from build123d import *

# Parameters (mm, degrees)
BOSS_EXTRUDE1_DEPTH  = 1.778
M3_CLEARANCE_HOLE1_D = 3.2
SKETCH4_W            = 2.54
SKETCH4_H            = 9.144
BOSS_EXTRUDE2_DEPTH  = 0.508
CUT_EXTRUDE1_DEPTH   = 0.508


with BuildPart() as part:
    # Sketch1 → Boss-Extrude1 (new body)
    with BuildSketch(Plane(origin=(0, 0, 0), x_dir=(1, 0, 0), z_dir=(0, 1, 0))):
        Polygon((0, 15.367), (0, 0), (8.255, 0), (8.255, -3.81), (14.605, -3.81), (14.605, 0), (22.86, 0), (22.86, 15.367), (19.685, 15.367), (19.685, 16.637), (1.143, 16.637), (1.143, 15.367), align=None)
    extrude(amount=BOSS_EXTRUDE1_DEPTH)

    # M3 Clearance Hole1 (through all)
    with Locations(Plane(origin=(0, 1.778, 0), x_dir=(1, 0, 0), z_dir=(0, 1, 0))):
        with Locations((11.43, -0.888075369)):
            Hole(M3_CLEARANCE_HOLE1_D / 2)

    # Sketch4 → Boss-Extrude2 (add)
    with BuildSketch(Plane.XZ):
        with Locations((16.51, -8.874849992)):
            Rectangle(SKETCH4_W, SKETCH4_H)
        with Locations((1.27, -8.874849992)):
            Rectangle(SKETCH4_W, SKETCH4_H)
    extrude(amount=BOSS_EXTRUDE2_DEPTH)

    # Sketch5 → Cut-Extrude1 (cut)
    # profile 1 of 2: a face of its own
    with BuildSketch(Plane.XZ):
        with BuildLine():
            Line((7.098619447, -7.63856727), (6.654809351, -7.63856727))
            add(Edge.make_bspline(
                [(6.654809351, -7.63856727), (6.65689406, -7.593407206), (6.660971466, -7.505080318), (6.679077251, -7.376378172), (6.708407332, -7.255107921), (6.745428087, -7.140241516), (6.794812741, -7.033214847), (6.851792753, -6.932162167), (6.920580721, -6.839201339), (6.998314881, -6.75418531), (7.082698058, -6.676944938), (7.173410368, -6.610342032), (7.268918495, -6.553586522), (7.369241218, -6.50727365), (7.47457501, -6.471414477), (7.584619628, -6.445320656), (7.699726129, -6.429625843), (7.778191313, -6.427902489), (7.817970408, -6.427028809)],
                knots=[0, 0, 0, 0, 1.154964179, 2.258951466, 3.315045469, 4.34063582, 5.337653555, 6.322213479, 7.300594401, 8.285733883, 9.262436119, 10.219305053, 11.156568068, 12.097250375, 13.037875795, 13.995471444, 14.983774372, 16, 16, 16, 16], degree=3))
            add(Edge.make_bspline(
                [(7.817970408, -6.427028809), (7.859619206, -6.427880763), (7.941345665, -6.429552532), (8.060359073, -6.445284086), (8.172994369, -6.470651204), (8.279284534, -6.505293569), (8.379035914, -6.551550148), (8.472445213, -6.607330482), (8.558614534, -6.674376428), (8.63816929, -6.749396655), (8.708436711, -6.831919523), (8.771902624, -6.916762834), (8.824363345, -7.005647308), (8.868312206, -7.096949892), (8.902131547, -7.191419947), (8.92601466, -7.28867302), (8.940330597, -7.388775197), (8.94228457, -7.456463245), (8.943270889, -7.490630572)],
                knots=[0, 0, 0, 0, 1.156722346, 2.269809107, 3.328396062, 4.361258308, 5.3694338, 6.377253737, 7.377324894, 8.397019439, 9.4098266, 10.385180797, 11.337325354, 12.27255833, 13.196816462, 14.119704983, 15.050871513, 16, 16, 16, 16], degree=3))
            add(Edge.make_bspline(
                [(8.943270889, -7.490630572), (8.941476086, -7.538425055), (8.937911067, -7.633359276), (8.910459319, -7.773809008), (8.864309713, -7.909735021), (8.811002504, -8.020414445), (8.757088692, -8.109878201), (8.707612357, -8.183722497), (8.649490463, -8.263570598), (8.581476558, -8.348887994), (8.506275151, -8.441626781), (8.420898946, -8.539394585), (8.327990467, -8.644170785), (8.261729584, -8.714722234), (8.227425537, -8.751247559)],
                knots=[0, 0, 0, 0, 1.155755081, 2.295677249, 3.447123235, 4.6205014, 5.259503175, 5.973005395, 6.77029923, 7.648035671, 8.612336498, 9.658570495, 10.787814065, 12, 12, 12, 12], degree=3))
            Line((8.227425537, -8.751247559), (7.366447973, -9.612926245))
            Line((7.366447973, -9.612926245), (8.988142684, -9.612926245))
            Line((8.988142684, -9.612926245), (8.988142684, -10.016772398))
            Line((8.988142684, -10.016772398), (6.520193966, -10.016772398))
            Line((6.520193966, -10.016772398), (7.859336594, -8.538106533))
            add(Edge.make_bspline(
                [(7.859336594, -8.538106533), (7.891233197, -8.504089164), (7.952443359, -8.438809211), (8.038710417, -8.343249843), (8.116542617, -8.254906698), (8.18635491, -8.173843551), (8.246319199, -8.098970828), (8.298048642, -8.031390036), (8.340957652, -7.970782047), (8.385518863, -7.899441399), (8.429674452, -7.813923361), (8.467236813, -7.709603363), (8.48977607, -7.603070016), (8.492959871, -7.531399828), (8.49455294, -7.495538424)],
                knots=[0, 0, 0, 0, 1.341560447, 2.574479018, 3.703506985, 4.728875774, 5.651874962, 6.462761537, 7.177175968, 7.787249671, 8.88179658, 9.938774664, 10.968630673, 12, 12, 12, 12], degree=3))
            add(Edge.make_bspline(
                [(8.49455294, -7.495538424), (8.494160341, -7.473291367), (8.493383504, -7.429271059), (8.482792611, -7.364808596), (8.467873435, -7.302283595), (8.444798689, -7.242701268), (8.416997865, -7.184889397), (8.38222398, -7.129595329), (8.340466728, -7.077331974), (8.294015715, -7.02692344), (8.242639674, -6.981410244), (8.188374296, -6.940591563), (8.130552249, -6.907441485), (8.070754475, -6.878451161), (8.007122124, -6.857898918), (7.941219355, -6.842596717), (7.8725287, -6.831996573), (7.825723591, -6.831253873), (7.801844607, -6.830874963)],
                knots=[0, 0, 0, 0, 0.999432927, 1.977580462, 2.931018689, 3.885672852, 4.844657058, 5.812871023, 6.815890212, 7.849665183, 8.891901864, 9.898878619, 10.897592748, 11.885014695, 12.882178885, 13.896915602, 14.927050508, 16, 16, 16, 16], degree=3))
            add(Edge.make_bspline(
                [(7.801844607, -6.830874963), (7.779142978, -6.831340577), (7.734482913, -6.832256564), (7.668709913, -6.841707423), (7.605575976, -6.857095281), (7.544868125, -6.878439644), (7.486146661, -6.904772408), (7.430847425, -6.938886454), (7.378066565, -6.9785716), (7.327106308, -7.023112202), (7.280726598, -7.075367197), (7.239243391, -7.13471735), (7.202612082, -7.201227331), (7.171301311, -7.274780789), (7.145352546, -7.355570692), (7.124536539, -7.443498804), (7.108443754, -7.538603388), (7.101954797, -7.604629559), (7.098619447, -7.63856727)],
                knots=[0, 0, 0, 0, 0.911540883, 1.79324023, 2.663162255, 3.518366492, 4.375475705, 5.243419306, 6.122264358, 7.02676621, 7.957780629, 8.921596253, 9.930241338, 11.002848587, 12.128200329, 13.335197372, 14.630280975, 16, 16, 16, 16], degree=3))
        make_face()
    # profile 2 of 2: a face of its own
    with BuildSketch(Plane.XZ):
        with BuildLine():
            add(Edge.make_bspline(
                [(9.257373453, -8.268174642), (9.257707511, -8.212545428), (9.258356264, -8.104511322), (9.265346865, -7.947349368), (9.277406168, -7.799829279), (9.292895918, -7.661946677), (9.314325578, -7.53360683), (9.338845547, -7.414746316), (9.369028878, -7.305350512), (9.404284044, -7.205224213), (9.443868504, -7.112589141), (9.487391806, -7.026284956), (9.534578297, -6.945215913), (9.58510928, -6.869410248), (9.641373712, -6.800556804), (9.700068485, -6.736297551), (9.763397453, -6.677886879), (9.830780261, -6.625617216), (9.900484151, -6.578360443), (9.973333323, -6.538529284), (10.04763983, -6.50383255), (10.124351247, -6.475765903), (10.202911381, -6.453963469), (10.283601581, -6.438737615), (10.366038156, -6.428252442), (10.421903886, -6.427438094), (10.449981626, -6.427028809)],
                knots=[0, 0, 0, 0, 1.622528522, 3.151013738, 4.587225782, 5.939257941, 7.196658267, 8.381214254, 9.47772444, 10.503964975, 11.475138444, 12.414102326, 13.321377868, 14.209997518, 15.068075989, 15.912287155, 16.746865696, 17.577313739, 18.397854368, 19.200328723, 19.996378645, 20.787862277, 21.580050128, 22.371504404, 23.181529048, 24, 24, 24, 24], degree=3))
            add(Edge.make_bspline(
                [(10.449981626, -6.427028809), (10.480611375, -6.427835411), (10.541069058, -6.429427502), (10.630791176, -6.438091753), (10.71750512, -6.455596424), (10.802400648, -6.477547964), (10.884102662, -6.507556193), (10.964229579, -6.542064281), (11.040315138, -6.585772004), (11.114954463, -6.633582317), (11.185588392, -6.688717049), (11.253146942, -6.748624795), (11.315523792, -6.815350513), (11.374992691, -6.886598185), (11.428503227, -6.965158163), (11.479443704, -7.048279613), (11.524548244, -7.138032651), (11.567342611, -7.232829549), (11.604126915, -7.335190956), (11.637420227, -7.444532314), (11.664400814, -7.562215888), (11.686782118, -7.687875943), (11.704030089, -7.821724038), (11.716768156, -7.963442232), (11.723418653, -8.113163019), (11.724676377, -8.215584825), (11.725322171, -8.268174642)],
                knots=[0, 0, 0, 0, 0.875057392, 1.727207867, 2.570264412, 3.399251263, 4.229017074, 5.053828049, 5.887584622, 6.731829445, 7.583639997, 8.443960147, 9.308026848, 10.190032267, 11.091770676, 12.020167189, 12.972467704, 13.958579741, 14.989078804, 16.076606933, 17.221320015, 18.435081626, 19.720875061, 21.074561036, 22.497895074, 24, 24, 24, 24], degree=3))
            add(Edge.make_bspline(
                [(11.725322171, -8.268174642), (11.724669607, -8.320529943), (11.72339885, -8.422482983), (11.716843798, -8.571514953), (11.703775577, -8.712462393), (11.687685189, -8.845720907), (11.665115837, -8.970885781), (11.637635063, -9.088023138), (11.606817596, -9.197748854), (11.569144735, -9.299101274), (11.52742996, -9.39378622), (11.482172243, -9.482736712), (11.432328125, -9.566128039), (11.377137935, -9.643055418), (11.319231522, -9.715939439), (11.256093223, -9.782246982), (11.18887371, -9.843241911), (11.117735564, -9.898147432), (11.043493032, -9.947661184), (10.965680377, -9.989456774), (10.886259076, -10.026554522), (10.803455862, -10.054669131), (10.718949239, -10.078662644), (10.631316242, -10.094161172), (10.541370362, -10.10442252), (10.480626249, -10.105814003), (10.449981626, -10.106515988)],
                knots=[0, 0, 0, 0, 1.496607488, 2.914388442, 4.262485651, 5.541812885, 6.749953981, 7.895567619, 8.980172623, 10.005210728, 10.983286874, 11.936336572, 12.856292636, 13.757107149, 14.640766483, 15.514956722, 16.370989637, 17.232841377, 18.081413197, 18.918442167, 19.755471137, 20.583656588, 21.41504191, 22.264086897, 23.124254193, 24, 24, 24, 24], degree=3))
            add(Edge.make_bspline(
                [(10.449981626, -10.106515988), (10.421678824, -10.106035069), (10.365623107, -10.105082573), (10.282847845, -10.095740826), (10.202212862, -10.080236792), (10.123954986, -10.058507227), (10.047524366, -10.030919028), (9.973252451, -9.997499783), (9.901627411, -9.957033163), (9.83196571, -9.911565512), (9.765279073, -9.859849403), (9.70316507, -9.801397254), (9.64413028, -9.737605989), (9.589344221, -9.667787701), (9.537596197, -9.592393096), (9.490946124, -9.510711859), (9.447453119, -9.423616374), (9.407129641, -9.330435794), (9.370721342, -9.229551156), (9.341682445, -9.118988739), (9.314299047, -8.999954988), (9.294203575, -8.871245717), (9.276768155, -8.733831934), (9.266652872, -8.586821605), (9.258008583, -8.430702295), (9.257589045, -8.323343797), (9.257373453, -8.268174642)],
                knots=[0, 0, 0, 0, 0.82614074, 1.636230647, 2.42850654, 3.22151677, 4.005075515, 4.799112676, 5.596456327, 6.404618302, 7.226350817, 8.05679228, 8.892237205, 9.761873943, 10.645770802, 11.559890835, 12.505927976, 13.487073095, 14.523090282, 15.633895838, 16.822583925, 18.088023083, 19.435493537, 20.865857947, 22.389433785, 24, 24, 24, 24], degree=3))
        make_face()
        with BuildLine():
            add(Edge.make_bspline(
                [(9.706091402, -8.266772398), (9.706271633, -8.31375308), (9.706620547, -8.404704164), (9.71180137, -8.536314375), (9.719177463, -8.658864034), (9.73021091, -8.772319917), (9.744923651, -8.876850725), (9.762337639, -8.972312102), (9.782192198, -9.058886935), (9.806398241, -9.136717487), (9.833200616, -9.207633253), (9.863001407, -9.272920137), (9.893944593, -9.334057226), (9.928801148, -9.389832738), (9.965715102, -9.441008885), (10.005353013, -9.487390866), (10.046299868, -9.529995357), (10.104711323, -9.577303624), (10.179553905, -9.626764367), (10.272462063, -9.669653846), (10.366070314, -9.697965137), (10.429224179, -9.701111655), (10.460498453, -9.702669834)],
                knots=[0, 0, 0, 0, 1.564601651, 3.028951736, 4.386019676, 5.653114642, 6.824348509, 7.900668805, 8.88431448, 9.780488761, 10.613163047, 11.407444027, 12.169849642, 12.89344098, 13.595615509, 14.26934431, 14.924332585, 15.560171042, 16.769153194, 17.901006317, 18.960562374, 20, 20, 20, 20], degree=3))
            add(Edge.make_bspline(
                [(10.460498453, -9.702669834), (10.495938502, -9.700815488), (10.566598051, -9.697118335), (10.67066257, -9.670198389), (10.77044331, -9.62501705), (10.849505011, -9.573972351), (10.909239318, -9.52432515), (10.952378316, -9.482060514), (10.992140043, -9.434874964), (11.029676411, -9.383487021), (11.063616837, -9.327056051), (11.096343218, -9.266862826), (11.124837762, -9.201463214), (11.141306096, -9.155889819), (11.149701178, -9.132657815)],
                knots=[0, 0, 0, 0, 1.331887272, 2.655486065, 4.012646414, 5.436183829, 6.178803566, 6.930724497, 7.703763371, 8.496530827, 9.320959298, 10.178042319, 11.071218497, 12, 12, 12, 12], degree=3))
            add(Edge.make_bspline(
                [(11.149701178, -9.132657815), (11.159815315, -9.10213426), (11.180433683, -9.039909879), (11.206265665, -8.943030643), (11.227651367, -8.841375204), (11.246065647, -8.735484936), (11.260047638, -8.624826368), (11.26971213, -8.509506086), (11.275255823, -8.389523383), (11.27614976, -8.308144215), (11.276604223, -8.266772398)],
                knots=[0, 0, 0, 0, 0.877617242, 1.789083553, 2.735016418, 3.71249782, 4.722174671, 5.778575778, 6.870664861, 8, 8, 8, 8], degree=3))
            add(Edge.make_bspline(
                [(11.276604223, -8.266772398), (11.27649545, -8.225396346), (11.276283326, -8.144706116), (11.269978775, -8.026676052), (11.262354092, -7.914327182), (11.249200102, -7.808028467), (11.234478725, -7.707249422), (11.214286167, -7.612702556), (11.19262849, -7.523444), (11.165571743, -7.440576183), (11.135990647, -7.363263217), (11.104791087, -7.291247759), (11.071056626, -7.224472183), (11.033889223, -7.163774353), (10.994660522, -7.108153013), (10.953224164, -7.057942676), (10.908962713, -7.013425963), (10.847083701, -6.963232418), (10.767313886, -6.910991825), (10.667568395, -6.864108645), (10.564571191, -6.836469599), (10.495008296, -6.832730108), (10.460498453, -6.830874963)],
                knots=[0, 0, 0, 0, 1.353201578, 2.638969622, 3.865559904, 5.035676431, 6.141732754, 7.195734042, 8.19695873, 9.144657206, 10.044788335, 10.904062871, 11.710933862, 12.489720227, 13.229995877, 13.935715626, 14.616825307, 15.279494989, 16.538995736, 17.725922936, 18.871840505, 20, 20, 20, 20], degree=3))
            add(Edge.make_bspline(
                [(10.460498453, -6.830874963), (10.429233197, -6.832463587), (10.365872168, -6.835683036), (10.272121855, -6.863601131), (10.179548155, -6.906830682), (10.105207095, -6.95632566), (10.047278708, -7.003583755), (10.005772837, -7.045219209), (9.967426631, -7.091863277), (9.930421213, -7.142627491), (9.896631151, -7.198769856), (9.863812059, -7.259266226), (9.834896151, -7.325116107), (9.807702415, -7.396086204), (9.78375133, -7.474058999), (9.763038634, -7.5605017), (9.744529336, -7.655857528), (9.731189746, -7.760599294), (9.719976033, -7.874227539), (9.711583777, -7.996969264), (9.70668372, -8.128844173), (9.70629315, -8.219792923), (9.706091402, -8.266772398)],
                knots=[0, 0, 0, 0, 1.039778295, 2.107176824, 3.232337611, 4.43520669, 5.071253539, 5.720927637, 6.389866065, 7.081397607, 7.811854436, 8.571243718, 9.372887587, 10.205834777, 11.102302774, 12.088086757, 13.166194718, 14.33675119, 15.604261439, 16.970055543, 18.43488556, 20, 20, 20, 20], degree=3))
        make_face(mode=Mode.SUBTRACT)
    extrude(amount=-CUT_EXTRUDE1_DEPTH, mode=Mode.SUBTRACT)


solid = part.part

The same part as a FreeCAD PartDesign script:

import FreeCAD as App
import Part
import Sketcher
from FreeCAD import Vector
Q = App.Units.Quantity


def add_polygon(sketch, points):
    """Adds a closed chain of lines whose ends are joined by coincident constraints."""
    first, n = sketch.GeometryCount, len(points)
    for a, b in zip(points, points[1:] + points[:1]):
        sketch.addGeometry(Part.LineSegment(App.Vector(*a, 0), App.Vector(*b, 0)), False)
    for i in range(n):
        sketch.addConstraint(Sketcher.Constraint("Coincident", first + i, 2, first + (i + 1) % n, 1))

doc = App.newDocument("Part")
params = doc.addObject("Spreadsheet::Sheet", "Params")
for row, (alias, value) in enumerate([
    ("sketch1_width", "0.25 in"),
    ("sketch1_width2", "0.73 in"),
    ("sketch1_height", "0.15 in"),
    ("sketch1_height2", "0.05 in"),
    ("sketch1_height3", "0.605 in"),
    ("pad1_length", "0.07 in"),
    ("hole_diameter", "3.2 mm"),
    ("sketch3_width", "0.1 in"),
    ("sketch3_height", "0.36 in"),
    ("pad2_length", "0.02 in"),
    ("pocket1_length", "0.02 in"),
], start=1):
    params.set(f"A{row}", alias)
    params.set(f"B{row}", "=" + value)
    params.setAlias(f"B{row}", alias)

body = doc.addObject("PartDesign::Body", "Body")

# Sketch on XZ plane
sketch1 = body.newObject("Sketcher::SketchObject", "Sketch")
sketch1.AttachmentSupport = (doc.getObject("XZ_Plane"), [""])
sketch1.MapMode = "FlatFace"
add_polygon(sketch1, [(0, -15.4), (0, 0), (8.3, 0), (8.3, 3.8), (14.6, 3.8), (14.6, 0), (22.9, 0), (22.9, -15.4), (19.7, -15.4), (19.7, -16.6), (1.1, -16.6), (1.1, -15.4)])  # lines 0-11
sketch1.addConstraint(Sketcher.Constraint("Vertical", 0))
sketch1.addConstraint(Sketcher.Constraint("Horizontal", 1))
sketch1.addConstraint(Sketcher.Constraint("Vertical", 2))
sketch1.addConstraint(Sketcher.Constraint("Horizontal", 3))
sketch1.addConstraint(Sketcher.Constraint("Vertical", 4))
sketch1.addConstraint(Sketcher.Constraint("Horizontal", 5))
sketch1.addConstraint(Sketcher.Constraint("Vertical", 6))
sketch1.addConstraint(Sketcher.Constraint("Horizontal", 7))
sketch1.addConstraint(Sketcher.Constraint("Vertical", 8))
sketch1.addConstraint(Sketcher.Constraint("Horizontal", 9))
sketch1.addConstraint(Sketcher.Constraint("Vertical", 10))
sketch1.addConstraint(Sketcher.Constraint("Horizontal", 11))
sketch1.addConstraint(Sketcher.Constraint("Coincident", 0, 2, -1, 1))
sketch1.addConstraint(Sketcher.Constraint("PointOnObject", 4, 2, -1))
sketch1.addConstraint(Sketcher.Constraint("Horizontal", 7, 2, 10, 2))
sketch1.addConstraint(Sketcher.Constraint("Equal", 1, 5))
sketch1.addConstraint(Sketcher.Constraint("DistanceX", 3, 1, 3, 2, Q("0.25 in")))
sketch1.addConstraint(Sketcher.Constraint("DistanceX", 9, 2, 9, 1, Q("0.73 in")))
sketch1.addConstraint(Sketcher.Constraint("DistanceY", 2, 1, 2, 2, Q("0.15 in")))
sketch1.addConstraint(Sketcher.Constraint("DistanceY", 8, 2, 8, 1, Q("0.05 in")))
sketch1.addConstraint(Sketcher.Constraint("DistanceX", -1, 1, 5, 2, Q("0.9 in")))
sketch1.addConstraint(Sketcher.Constraint("DistanceX", 4, 2, 7, 2, Q("0.2 in")))
sketch1.addConstraint(Sketcher.Constraint("DistanceY", 0, 1, 0, 2, Q("0.605 in")))
sketch1.setExpression("Constraints[28]", "Params.sketch1_width")
sketch1.setExpression("Constraints[29]", "Params.sketch1_width2")
sketch1.setExpression("Constraints[30]", "Params.sketch1_height")
sketch1.setExpression("Constraints[31]", "Params.sketch1_height2")
sketch1.setExpression("Constraints[34]", "Params.sketch1_height3")
pad1 = body.newObject("PartDesign::Pad", "Pad")
pad1.Profile = sketch1
pad1.setExpression("Length", "Params.pad1_length")
pad1.Reversed = True

# Sketch on XZ plane
sketch2 = body.newObject("Sketcher::SketchObject", "Sketch001")
sketch2.AttachmentSupport = (doc.getObject("XZ_Plane"), [""])
sketch2.MapMode = "FlatFace"
sketch2.AttachmentOffset = App.Placement(Vector(0, 0, -0.07 * 25.4), App.Rotation())
sketch2.addGeometry(Part.Circle(Vector(11.4, 0.9, 0), Vector(0, 0, 1), 1.6), False)
sketch2.addConstraint(Sketcher.Constraint("Diameter", 0, 3.2))
sketch2.addConstraint(Sketcher.Constraint("DistanceX", -1, 1, 0, 3, Q("0.45 in")))
sketch2.addConstraint(Sketcher.Constraint("DistanceY", -1, 1, 0, 3, 0.888075))
doc.recompute()
hole = body.newObject("PartDesign::Hole", "Hole")
hole.Profile = sketch2
hole.ThreadType = "None"
hole.setExpression("Diameter", "Params.hole_diameter")
hole.DepthType = "ThroughAll"
hole.Reversed = True

# Sketch on XZ plane
sketch3 = body.newObject("Sketcher::SketchObject", "Sketch002")
sketch3.AttachmentSupport = (doc.getObject("XZ_Plane"), [""])
sketch3.MapMode = "FlatFace"
add_polygon(sketch3, [(15.2, -4.3), (15.2, -13.4), (17.8, -13.4), (17.8, -4.3)])  # lines 0-3
add_polygon(sketch3, [(0, -4.3), (0, -13.4), (2.5, -13.4), (2.5, -4.3)])  # lines 4-7
sketch3.addConstraint(Sketcher.Constraint("Vertical", 0))
sketch3.addConstraint(Sketcher.Constraint("Horizontal", 1))
sketch3.addConstraint(Sketcher.Constraint("Vertical", 2))
sketch3.addConstraint(Sketcher.Constraint("Horizontal", 3))
sketch3.addConstraint(Sketcher.Constraint("Vertical", 4))
sketch3.addConstraint(Sketcher.Constraint("Horizontal", 5))
sketch3.addConstraint(Sketcher.Constraint("Vertical", 6))
sketch3.addConstraint(Sketcher.Constraint("Horizontal", 7))
sketch3.addConstraint(Sketcher.Constraint("PointOnObject", 4, 2, -2))
sketch3.addConstraint(Sketcher.Constraint("Horizontal", 1, 2, 4, 2))
sketch3.addConstraint(Sketcher.Constraint("Horizontal", 3, 2, 6, 2))
sketch3.addConstraint(Sketcher.Constraint("Equal", 3, 5))
sketch3.addConstraint(Sketcher.Constraint("DistanceX", 1, 1, 1, 2, Q("0.1 in")))
sketch3.addConstraint(Sketcher.Constraint("DistanceY", 0, 2, 0, 1, Q("0.36 in")))
sketch3.addConstraint(Sketcher.Constraint("DistanceX", -1, 1, 0, 2, Q("0.6 in")))
sketch3.addConstraint(Sketcher.Constraint("DistanceY", 0, 2, -1, 1, 13.44685))
sketch3.setExpression("Constraints[20]", "Params.sketch3_width")
sketch3.setExpression("Constraints[21]", "Params.sketch3_height")
pad2 = body.newObject("PartDesign::Pad", "Pad001")
pad2.Profile = sketch3
pad2.setExpression("Length", "Params.pad2_length")

# Sketch on XZ plane
sketch4 = body.newObject("Sketcher::SketchObject", "Sketch003")
sketch4.AttachmentSupport = (doc.getObject("XZ_Plane"), [""])
sketch4.MapMode = "FlatFace"
sketch4.addGeometry(Part.LineSegment(Vector(6.654809, -7.638567, 0), Vector(7.098619, -7.638567, 0)), False)
sketch4.addGeometry(Part.BSplineCurve([Vector(7.801845, -6.830875, 0), Vector(7.779143, -6.831341, 0), Vector(7.734483, -6.832257, 0), Vector(7.66871, -6.841707, 0), Vector(7.605576, -6.857095, 0), Vector(7.544868, -6.87844, 0), Vector(7.486147, -6.904772, 0), Vector(7.430847, -6.938886, 0), Vector(7.378067, -6.978572, 0), Vector(7.327106, -7.023112, 0), Vector(7.280727, -7.075367, 0), Vector(7.239243, -7.134717, 0), Vector(7.202612, -7.201227, 0), Vector(7.171301, -7.274781, 0), Vector(7.145353, -7.355571, 0), Vector(7.124537, -7.443499, 0), Vector(7.108444, -7.538603, 0), Vector(7.101955, -7.60463, 0), Vector(7.098619, -7.638567, 0)], [4, 1, 1, 1, 1, 1, 1, 1, 1, 1, 1, 1, 1, 1, 1, 1, 4], [0, 0.911540883, 1.79324023, 2.663162255, 3.518366492, 4.375475705, 5.243419306, 6.122264358, 7.02676621, 7.957780629, 8.921596253, 9.930241338, 11.002848587, 12.128200329, 13.335197372, 14.630280975, 16], False, 3, [1, 1, 1, 1, 1, 1, 1, 1, 1, 1, 1, 1, 1, 1, 1, 1, 1, 1, 1], False), False)
sketch4.addGeometry(Part.BSplineCurve([Vector(8.494553, -7.495538, 0), Vector(8.49416, -7.473291, 0), Vector(8.493384, -7.429271, 0), Vector(8.482793, -7.364809, 0), Vector(8.467873, -7.302284, 0), Vector(8.444799, -7.242701, 0), Vector(8.416998, -7.184889, 0), Vector(8.382224, -7.129595, 0), Vector(8.340467, -7.077332, 0), Vector(8.294016, -7.026923, 0), Vector(8.24264, -6.98141, 0), Vector(8.188374, -6.940592, 0), Vector(8.130552, -6.907441, 0), Vector(8.070754, -6.878451, 0), Vector(8.007122, -6.857899, 0), Vector(7.941219, -6.842597, 0), Vector(7.872529, -6.831997, 0), Vector(7.825724, -6.831254, 0), Vector(7.801845, -6.830875, 0)], [4, 1, 1, 1, 1, 1, 1, 1, 1, 1, 1, 1, 1, 1, 1, 1, 4], [0, 0.999432927, 1.977580462, 2.931018689, 3.885672852, 4.844657058, 5.812871023, 6.815890212, 7.849665183, 8.891901864, 9.898878619, 10.897592748, 11.885014695, 12.882178885, 13.896915602, 14.927050508, 16], False, 3, [1, 1, 1, 1, 1, 1, 1, 1, 1, 1, 1, 1, 1, 1, 1, 1, 1, 1, 1], False), False)
sketch4.addGeometry(Part.BSplineCurve([Vector(7.859337, -8.538107, 0), Vector(7.891233, -8.504089, 0), Vector(7.952443, -8.438809, 0), Vector(8.03871, -8.34325, 0), Vector(8.116543, -8.254907, 0), Vector(8.186355, -8.173844, 0), Vector(8.246319, -8.098971, 0), Vector(8.298049, -8.03139, 0), Vector(8.340958, -7.970782, 0), Vector(8.385519, -7.899441, 0), Vector(8.429674, -7.813923, 0), Vector(8.467237, -7.709603, 0), Vector(8.489776, -7.60307, 0), Vector(8.49296, -7.5314, 0), Vector(8.494553, -7.495538, 0)], [4, 1, 1, 1, 1, 1, 1, 1, 1, 1, 1, 1, 4], [0, 1.341560447, 2.574479018, 3.703506985, 4.728875774, 5.651874962, 6.462761537, 7.177175968, 7.787249671, 8.88179658, 9.938774664, 10.968630673, 12], False, 3, [1, 1, 1, 1, 1, 1, 1, 1, 1, 1, 1, 1, 1, 1, 1], False), False)
sketch4.addGeometry(Part.LineSegment(Vector(7.859337, -8.538107, 0), Vector(6.520194, -10.016772, 0)), False)
sketch4.addGeometry(Part.LineSegment(Vector(6.520194, -10.016772, 0), Vector(8.988143, -10.016772, 0)), False)
sketch4.addGeometry(Part.LineSegment(Vector(8.988143, -10.016772, 0), Vector(8.988143, -9.612926, 0)), False)
sketch4.addGeometry(Part.LineSegment(Vector(8.988143, -9.612926, 0), Vector(7.366448, -9.612926, 0)), False)
sketch4.addGeometry(Part.LineSegment(Vector(7.366448, -9.612926, 0), Vector(8.227426, -8.751248, 0)), False)
sketch4.addGeometry(Part.BSplineCurve([Vector(8.943271, -7.490631, 0), Vector(8.941476, -7.538425, 0), Vector(8.937911, -7.633359, 0), Vector(8.910459, -7.773809, 0), Vector(8.86431, -7.909735, 0), Vector(8.811003, -8.020414, 0), Vector(8.757089, -8.109878, 0), Vector(8.707612, -8.183722, 0), Vector(8.64949, -8.263571, 0), Vector(8.581477, -8.348888, 0), Vector(8.506275, -8.441627, 0), Vector(8.420899, -8.539395, 0), Vector(8.32799, -8.644171, 0), Vector(8.26173, -8.714722, 0), Vector(8.227426, -8.751248, 0)], [4, 1, 1, 1, 1, 1, 1, 1, 1, 1, 1, 1, 4], [0, 1.155755081, 2.295677249, 3.447123235, 4.6205014, 5.259503175, 5.973005395, 6.77029923, 7.648035671, 8.612336498, 9.658570495, 10.787814065, 12], False, 3, [1, 1, 1, 1, 1, 1, 1, 1, 1, 1, 1, 1, 1, 1, 1], False), False)
sketch4.addGeometry(Part.BSplineCurve([Vector(7.81797, -6.427029, 0), Vector(7.859619, -6.427881, 0), Vector(7.941346, -6.429553, 0), Vector(8.060359, -6.445284, 0), Vector(8.172994, -6.470651, 0), Vector(8.279285, -6.505294, 0), Vector(8.379036, -6.55155, 0), Vector(8.472445, -6.60733, 0), Vector(8.558615, -6.674376, 0), Vector(8.638169, -6.749397, 0), Vector(8.708437, -6.83192, 0), Vector(8.771903, -6.916763, 0), Vector(8.824363, -7.005647, 0), Vector(8.868312, -7.09695, 0), Vector(8.902132, -7.19142, 0), Vector(8.926015, -7.288673, 0), Vector(8.940331, -7.388775, 0), Vector(8.942285, -7.456463, 0), Vector(8.943271, -7.490631, 0)], [4, 1, 1, 1, 1, 1, 1, 1, 1, 1, 1, 1, 1, 1, 1, 1, 4], [0, 1.156722346, 2.269809107, 3.328396062, 4.361258308, 5.3694338, 6.377253737, 7.377324894, 8.397019439, 9.4098266, 10.385180797, 11.337325354, 12.27255833, 13.196816462, 14.119704983, 15.050871513, 16], False, 3, [1, 1, 1, 1, 1, 1, 1, 1, 1, 1, 1, 1, 1, 1, 1, 1, 1, 1, 1], False), False)
sketch4.addGeometry(Part.BSplineCurve([Vector(6.654809, -7.638567, 0), Vector(6.656894, -7.593407, 0), Vector(6.660971, -7.50508, 0), Vector(6.679077, -7.376378, 0), Vector(6.708407, -7.255108, 0), Vector(6.745428, -7.140242, 0), Vector(6.794813, -7.033215, 0), Vector(6.851793, -6.932162, 0), Vector(6.920581, -6.839201, 0), Vector(6.998315, -6.754185, 0), Vector(7.082698, -6.676945, 0), Vector(7.17341, -6.610342, 0), Vector(7.268918, -6.553587, 0), Vector(7.369241, -6.507274, 0), Vector(7.474575, -6.471414, 0), Vector(7.58462, -6.445321, 0), Vector(7.699726, -6.429626, 0), Vector(7.778191, -6.427902, 0), Vector(7.81797, -6.427029, 0)], [4, 1, 1, 1, 1, 1, 1, 1, 1, 1, 1, 1, 1, 1, 1, 1, 4], [0, 1.154964179, 2.258951466, 3.315045469, 4.34063582, 5.337653555, 6.322213479, 7.300594401, 8.285733883, 9.262436119, 10.219305053, 11.156568068, 12.097250375, 13.037875795, 13.995471444, 14.983774372, 16], False, 3, [1, 1, 1, 1, 1, 1, 1, 1, 1, 1, 1, 1, 1, 1, 1, 1, 1, 1, 1], False), False)
sketch4.addGeometry(Part.BSplineCurve([Vector(9.257373, -8.268175, 0), Vector(9.257708, -8.212545, 0), Vector(9.258356, -8.104511, 0), Vector(9.265347, -7.947349, 0), Vector(9.277406, -7.799829, 0), Vector(9.292896, -7.661947, 0), Vector(9.314326, -7.533607, 0), Vector(9.338846, -7.414746, 0), Vector(9.369029, -7.305351, 0), Vector(9.404284, -7.205224, 0), Vector(9.443869, -7.112589, 0), Vector(9.487392, -7.026285, 0), Vector(9.534578, -6.945216, 0), Vector(9.585109, -6.86941, 0), Vector(9.641374, -6.800557, 0), Vector(9.700068, -6.736298, 0), Vector(9.763397, -6.677887, 0), Vector(9.83078, -6.625617, 0), Vector(9.900484, -6.57836, 0), Vector(9.973333, -6.538529, 0), Vector(10.04764, -6.503833, 0), Vector(10.124351, -6.475766, 0), Vector(10.202911, -6.453963, 0), Vector(10.283602, -6.438738, 0), Vector(10.366038, -6.428252, 0), Vector(10.421904, -6.427438, 0), Vector(10.449982, -6.427029, 0)], [4, 1, 1, 1, 1, 1, 1, 1, 1, 1, 1, 1, 1, 1, 1, 1, 1, 1, 1, 1, 1, 1, 1, 1, 4], [0, 1.622528522, 3.151013738, 4.587225782, 5.939257941, 7.196658267, 8.381214254, 9.47772444, 10.503964975, 11.475138444, 12.414102326, 13.321377868, 14.209997518, 15.068075989, 15.912287155, 16.746865696, 17.577313739, 18.397854368, 19.200328723, 19.996378645, 20.787862277, 21.580050128, 22.371504404, 23.181529048, 24], False, 3, [1, 1, 1, 1, 1, 1, 1, 1, 1, 1, 1, 1, 1, 1, 1, 1, 1, 1, 1, 1, 1, 1, 1, 1, 1, 1, 1], False), False)
sketch4.addGeometry(Part.BSplineCurve([Vector(10.449982, -10.106516, 0), Vector(10.421679, -10.106035, 0), Vector(10.365623, -10.105083, 0), Vector(10.282848, -10.095741, 0), Vector(10.202213, -10.080237, 0), Vector(10.123955, -10.058507, 0), Vector(10.047524, -10.030919, 0), Vector(9.973252, -9.9975, 0), Vector(9.901627, -9.957033, 0), Vector(9.831966, -9.911566, 0), Vector(9.765279, -9.859849, 0), Vector(9.703165, -9.801397, 0), Vector(9.64413, -9.737606, 0), Vector(9.589344, -9.667788, 0), Vector(9.537596, -9.592393, 0), Vector(9.490946, -9.510712, 0), Vector(9.447453, -9.423616, 0), Vector(9.40713, -9.330436, 0), Vector(9.370721, -9.229551, 0), Vector(9.341682, -9.118989, 0), Vector(9.314299, -8.999955, 0), Vector(9.294204, -8.871246, 0), Vector(9.276768, -8.733832, 0), Vector(9.266653, -8.586822, 0), Vector(9.258009, -8.430702, 0), Vector(9.257589, -8.323344, 0), Vector(9.257373, -8.268175, 0)], [4, 1, 1, 1, 1, 1, 1, 1, 1, 1, 1, 1, 1, 1, 1, 1, 1, 1, 1, 1, 1, 1, 1, 1, 4], [0, 0.82614074, 1.636230647, 2.42850654, 3.22151677, 4.005075515, 4.799112676, 5.596456327, 6.404618302, 7.226350817, 8.05679228, 8.892237205, 9.761873943, 10.645770802, 11.559890835, 12.505927976, 13.487073095, 14.523090282, 15.633895838, 16.822583925, 18.088023083, 19.435493537, 20.865857947, 22.389433785, 24], False, 3, [1, 1, 1, 1, 1, 1, 1, 1, 1, 1, 1, 1, 1, 1, 1, 1, 1, 1, 1, 1, 1, 1, 1, 1, 1, 1, 1], False), False)
sketch4.addGeometry(Part.BSplineCurve([Vector(11.725322, -8.268175, 0), Vector(11.72467, -8.32053, 0), Vector(11.723399, -8.422483, 0), Vector(11.716844, -8.571515, 0), Vector(11.703776, -8.712462, 0), Vector(11.687685, -8.845721, 0), Vector(11.665116, -8.970886, 0), Vector(11.637635, -9.088023, 0), Vector(11.606818, -9.197749, 0), Vector(11.569145, -9.299101, 0), Vector(11.52743, -9.393786, 0), Vector(11.482172, -9.482737, 0), Vector(11.432328, -9.566128, 0), Vector(11.377138, -9.643055, 0), Vector(11.319232, -9.715939, 0), Vector(11.256093, -9.782247, 0), Vector(11.188874, -9.843242, 0), Vector(11.117736, -9.898147, 0), Vector(11.043493, -9.947661, 0), Vector(10.96568, -9.989457, 0), Vector(10.886259, -10.026555, 0), Vector(10.803456, -10.054669, 0), Vector(10.718949, -10.078663, 0), Vector(10.631316, -10.094161, 0), Vector(10.54137, -10.104423, 0), Vector(10.480626, -10.105814, 0), Vector(10.449982, -10.106516, 0)], [4, 1, 1, 1, 1, 1, 1, 1, 1, 1, 1, 1, 1, 1, 1, 1, 1, 1, 1, 1, 1, 1, 1, 1, 4], [0, 1.496607488, 2.914388442, 4.262485651, 5.541812885, 6.749953981, 7.895567619, 8.980172623, 10.005210728, 10.983286874, 11.936336572, 12.856292636, 13.757107149, 14.640766483, 15.514956722, 16.370989637, 17.232841377, 18.081413197, 18.918442167, 19.755471137, 20.583656588, 21.41504191, 22.264086897, 23.124254193, 24], False, 3, [1, 1, 1, 1, 1, 1, 1, 1, 1, 1, 1, 1, 1, 1, 1, 1, 1, 1, 1, 1, 1, 1, 1, 1, 1, 1, 1], False), False)
sketch4.addGeometry(Part.BSplineCurve([Vector(10.449982, -6.427029, 0), Vector(10.480611, -6.427835, 0), Vector(10.541069, -6.429428, 0), Vector(10.630791, -6.438092, 0), Vector(10.717505, -6.455596, 0), Vector(10.802401, -6.477548, 0), Vector(10.884103, -6.507556, 0), Vector(10.96423, -6.542064, 0), Vector(11.040315, -6.585772, 0), Vector(11.114954, -6.633582, 0), Vector(11.185588, -6.688717, 0), Vector(11.253147, -6.748625, 0), Vector(11.315524, -6.815351, 0), Vector(11.374993, -6.886598, 0), Vector(11.428503, -6.965158, 0), Vector(11.479444, -7.04828, 0), Vector(11.524548, -7.138033, 0), Vector(11.567343, -7.23283, 0), Vector(11.604127, -7.335191, 0), Vector(11.63742, -7.444532, 0), Vector(11.664401, -7.562216, 0), Vector(11.686782, -7.687876, 0), Vector(11.70403, -7.821724, 0), Vector(11.716768, -7.963442, 0), Vector(11.723419, -8.113163, 0), Vector(11.724676, -8.215585, 0), Vector(11.725322, -8.268175, 0)], [4, 1, 1, 1, 1, 1, 1, 1, 1, 1, 1, 1, 1, 1, 1, 1, 1, 1, 1, 1, 1, 1, 1, 1, 4], [0, 0.875057392, 1.727207867, 2.570264412, 3.399251263, 4.229017074, 5.053828049, 5.887584622, 6.731829445, 7.583639997, 8.443960147, 9.308026848, 10.190032267, 11.091770676, 12.020167189, 12.972467704, 13.958579741, 14.989078804, 16.076606933, 17.221320015, 18.435081626, 19.720875061, 21.074561036, 22.497895074, 24], False, 3, [1, 1, 1, 1, 1, 1, 1, 1, 1, 1, 1, 1, 1, 1, 1, 1, 1, 1, 1, 1, 1, 1, 1, 1, 1, 1, 1], False), False)
sketch4.addGeometry(Part.BSplineCurve([Vector(10.460498, -6.830875, 0), Vector(10.429233, -6.832464, 0), Vector(10.365872, -6.835683, 0), Vector(10.272122, -6.863601, 0), Vector(10.179548, -6.906831, 0), Vector(10.105207, -6.956326, 0), Vector(10.047279, -7.003584, 0), Vector(10.005773, -7.045219, 0), Vector(9.967427, -7.091863, 0), Vector(9.930421, -7.142627, 0), Vector(9.896631, -7.19877, 0), Vector(9.863812, -7.259266, 0), Vector(9.834896, -7.325116, 0), Vector(9.807702, -7.396086, 0), Vector(9.783751, -7.474059, 0), Vector(9.763039, -7.560502, 0), Vector(9.744529, -7.655858, 0), Vector(9.73119, -7.760599, 0), Vector(9.719976, -7.874228, 0), Vector(9.711584, -7.996969, 0), Vector(9.706684, -8.128844, 0), Vector(9.706293, -8.219793, 0), Vector(9.706091, -8.266772, 0)], [4, 1, 1, 1, 1, 1, 1, 1, 1, 1, 1, 1, 1, 1, 1, 1, 1, 1, 1, 1, 4], [0, 1.039778295, 2.107176824, 3.232337611, 4.43520669, 5.071253539, 5.720927637, 6.389866065, 7.081397607, 7.811854436, 8.571243718, 9.372887587, 10.205834777, 11.102302774, 12.088086757, 13.166194718, 14.33675119, 15.604261439, 16.970055543, 18.43488556, 20], False, 3, [1, 1, 1, 1, 1, 1, 1, 1, 1, 1, 1, 1, 1, 1, 1, 1, 1, 1, 1, 1, 1, 1, 1], False), False)
sketch4.addGeometry(Part.BSplineCurve([Vector(11.276604, -8.266772, 0), Vector(11.276495, -8.225396, 0), Vector(11.276283, -8.144706, 0), Vector(11.269979, -8.026676, 0), Vector(11.262354, -7.914327, 0), Vector(11.2492, -7.808028, 0), Vector(11.234479, -7.707249, 0), Vector(11.214286, -7.612703, 0), Vector(11.192628, -7.523444, 0), Vector(11.165572, -7.440576, 0), Vector(11.135991, -7.363263, 0), Vector(11.104791, -7.291248, 0), Vector(11.071057, -7.224472, 0), Vector(11.033889, -7.163774, 0), Vector(10.994661, -7.108153, 0), Vector(10.953224, -7.057943, 0), Vector(10.908963, -7.013426, 0), Vector(10.847084, -6.963232, 0), Vector(10.767314, -6.910992, 0), Vector(10.667568, -6.864109, 0), Vector(10.564571, -6.83647, 0), Vector(10.495008, -6.83273, 0), Vector(10.460498, -6.830875, 0)], [4, 1, 1, 1, 1, 1, 1, 1, 1, 1, 1, 1, 1, 1, 1, 1, 1, 1, 1, 1, 4], [0, 1.353201578, 2.638969622, 3.865559904, 5.035676431, 6.141732754, 7.195734042, 8.19695873, 9.144657206, 10.044788335, 10.904062871, 11.710933862, 12.489720227, 13.229995877, 13.935715626, 14.616825307, 15.279494989, 16.538995736, 17.725922936, 18.871840505, 20], False, 3, [1, 1, 1, 1, 1, 1, 1, 1, 1, 1, 1, 1, 1, 1, 1, 1, 1, 1, 1, 1, 1, 1, 1], False), False)
sketch4.addGeometry(Part.BSplineCurve([Vector(11.149701, -9.132658, 0), Vector(11.159815, -9.102134, 0), Vector(11.180434, -9.03991, 0), Vector(11.206266, -8.943031, 0), Vector(11.227651, -8.841375, 0), Vector(11.246066, -8.735485, 0), Vector(11.260048, -8.624826, 0), Vector(11.269712, -8.509506, 0), Vector(11.275256, -8.389523, 0), Vector(11.27615, -8.308144, 0), Vector(11.276604, -8.266772, 0)], [4, 1, 1, 1, 1, 1, 1, 1, 4], [0, 0.877617242, 1.789083553, 2.735016418, 3.71249782, 4.722174671, 5.778575778, 6.870664861, 8], False, 3, [1, 1, 1, 1, 1, 1, 1, 1, 1, 1, 1], False), False)
sketch4.addGeometry(Part.BSplineCurve([Vector(10.460498, -9.70267, 0), Vector(10.495939, -9.700815, 0), Vector(10.566598, -9.697118, 0), Vector(10.670663, -9.670198, 0), Vector(10.770443, -9.625017, 0), Vector(10.849505, -9.573972, 0), Vector(10.909239, -9.524325, 0), Vector(10.952378, -9.482061, 0), Vector(10.99214, -9.434875, 0), Vector(11.029676, -9.383487, 0), Vector(11.063617, -9.327056, 0), Vector(11.096343, -9.266863, 0), Vector(11.124838, -9.201463, 0), Vector(11.141306, -9.15589, 0), Vector(11.149701, -9.132658, 0)], [4, 1, 1, 1, 1, 1, 1, 1, 1, 1, 1, 1, 4], [0, 1.331887272, 2.655486065, 4.012646414, 5.436183829, 6.178803566, 6.930724497, 7.703763371, 8.496530827, 9.320959298, 10.178042319, 11.071218497, 12], False, 3, [1, 1, 1, 1, 1, 1, 1, 1, 1, 1, 1, 1, 1, 1, 1], False), False)
sketch4.addGeometry(Part.BSplineCurve([Vector(9.706091, -8.266772, 0), Vector(9.706272, -8.313753, 0), Vector(9.706621, -8.404704, 0), Vector(9.711801, -8.536314, 0), Vector(9.719177, -8.658864, 0), Vector(9.730211, -8.77232, 0), Vector(9.744924, -8.876851, 0), Vector(9.762338, -8.972312, 0), Vector(9.782192, -9.058887, 0), Vector(9.806398, -9.136717, 0), Vector(9.833201, -9.207633, 0), Vector(9.863001, -9.27292, 0), Vector(9.893945, -9.334057, 0), Vector(9.928801, -9.389833, 0), Vector(9.965715, -9.441009, 0), Vector(10.005353, -9.487391, 0), Vector(10.0463, -9.529995, 0), Vector(10.104711, -9.577304, 0), Vector(10.179554, -9.626764, 0), Vector(10.272462, -9.669654, 0), Vector(10.36607, -9.697965, 0), Vector(10.429224, -9.701112, 0), Vector(10.460498, -9.70267, 0)], [4, 1, 1, 1, 1, 1, 1, 1, 1, 1, 1, 1, 1, 1, 1, 1, 1, 1, 1, 1, 4], [0, 1.564601651, 3.028951736, 4.386019676, 5.653114642, 6.824348509, 7.900668805, 8.88431448, 9.780488761, 10.613163047, 11.407444027, 12.169849642, 12.89344098, 13.595615509, 14.26934431, 14.924332585, 15.560171042, 16.769153194, 17.901006317, 18.960562374, 20], False, 3, [1, 1, 1, 1, 1, 1, 1, 1, 1, 1, 1, 1, 1, 1, 1, 1, 1, 1, 1, 1, 1, 1, 1], False), False)
sketch4.addConstraint(Sketcher.Constraint("Block", 1))
sketch4.addConstraint(Sketcher.Constraint("Block", 2))
sketch4.addConstraint(Sketcher.Constraint("Block", 3))
sketch4.addConstraint(Sketcher.Constraint("Block", 9))
sketch4.addConstraint(Sketcher.Constraint("Block", 10))
sketch4.addConstraint(Sketcher.Constraint("Block", 11))
sketch4.addConstraint(Sketcher.Constraint("Block", 12))
sketch4.addConstraint(Sketcher.Constraint("Block", 13))
sketch4.addConstraint(Sketcher.Constraint("Block", 14))
sketch4.addConstraint(Sketcher.Constraint("Block", 15))
sketch4.addConstraint(Sketcher.Constraint("Block", 16))
sketch4.addConstraint(Sketcher.Constraint("Block", 17))
sketch4.addConstraint(Sketcher.Constraint("Block", 18))
sketch4.addConstraint(Sketcher.Constraint("Block", 19))
sketch4.addConstraint(Sketcher.Constraint("Block", 20))
sketch4.addConstraint(Sketcher.Constraint("Coincident", 0, 2, 1, 2))
sketch4.addConstraint(Sketcher.Constraint("Coincident", 3, 1, 4, 1))
sketch4.addConstraint(Sketcher.Constraint("Coincident", 4, 2, 5, 1))
sketch4.addConstraint(Sketcher.Constraint("Coincident", 5, 2, 6, 1))
sketch4.addConstraint(Sketcher.Constraint("Coincident", 6, 2, 7, 1))
sketch4.addConstraint(Sketcher.Constraint("Coincident", 7, 2, 8, 1))
sketch4.addConstraint(Sketcher.Constraint("Coincident", 8, 2, 9, 2))
sketch4.addConstraint(Sketcher.Constraint("Coincident", 11, 1, 0, 1))
sketch4.addConstraint(Sketcher.Constraint("Horizontal", 5))
sketch4.addConstraint(Sketcher.Constraint("Vertical", 6))
sketch4.addConstraint(Sketcher.Constraint("Horizontal", 7))
sketch4.addConstraint(Sketcher.Constraint("DistanceX", 5, 1, 5, 2, 2.467949))
sketch4.addConstraint(Sketcher.Constraint("DistanceX", 7, 2, 7, 1, 1.621695))
sketch4.addConstraint(Sketcher.Constraint("DistanceY", 6, 1, 6, 2, 0.403846))
sketch4.addConstraint(Sketcher.Constraint("DistanceY", 6, 2, 0, 2, 1.974359))
sketch4.addConstraint(Sketcher.Constraint("DistanceX", 0, 2, 7, 2, 0.267829))
pocket1 = body.newObject("PartDesign::Pocket", "Pocket")
pocket1.Profile = sketch4
pocket1.setExpression("Length", "Params.pocket1_length")

doc.recompute()
